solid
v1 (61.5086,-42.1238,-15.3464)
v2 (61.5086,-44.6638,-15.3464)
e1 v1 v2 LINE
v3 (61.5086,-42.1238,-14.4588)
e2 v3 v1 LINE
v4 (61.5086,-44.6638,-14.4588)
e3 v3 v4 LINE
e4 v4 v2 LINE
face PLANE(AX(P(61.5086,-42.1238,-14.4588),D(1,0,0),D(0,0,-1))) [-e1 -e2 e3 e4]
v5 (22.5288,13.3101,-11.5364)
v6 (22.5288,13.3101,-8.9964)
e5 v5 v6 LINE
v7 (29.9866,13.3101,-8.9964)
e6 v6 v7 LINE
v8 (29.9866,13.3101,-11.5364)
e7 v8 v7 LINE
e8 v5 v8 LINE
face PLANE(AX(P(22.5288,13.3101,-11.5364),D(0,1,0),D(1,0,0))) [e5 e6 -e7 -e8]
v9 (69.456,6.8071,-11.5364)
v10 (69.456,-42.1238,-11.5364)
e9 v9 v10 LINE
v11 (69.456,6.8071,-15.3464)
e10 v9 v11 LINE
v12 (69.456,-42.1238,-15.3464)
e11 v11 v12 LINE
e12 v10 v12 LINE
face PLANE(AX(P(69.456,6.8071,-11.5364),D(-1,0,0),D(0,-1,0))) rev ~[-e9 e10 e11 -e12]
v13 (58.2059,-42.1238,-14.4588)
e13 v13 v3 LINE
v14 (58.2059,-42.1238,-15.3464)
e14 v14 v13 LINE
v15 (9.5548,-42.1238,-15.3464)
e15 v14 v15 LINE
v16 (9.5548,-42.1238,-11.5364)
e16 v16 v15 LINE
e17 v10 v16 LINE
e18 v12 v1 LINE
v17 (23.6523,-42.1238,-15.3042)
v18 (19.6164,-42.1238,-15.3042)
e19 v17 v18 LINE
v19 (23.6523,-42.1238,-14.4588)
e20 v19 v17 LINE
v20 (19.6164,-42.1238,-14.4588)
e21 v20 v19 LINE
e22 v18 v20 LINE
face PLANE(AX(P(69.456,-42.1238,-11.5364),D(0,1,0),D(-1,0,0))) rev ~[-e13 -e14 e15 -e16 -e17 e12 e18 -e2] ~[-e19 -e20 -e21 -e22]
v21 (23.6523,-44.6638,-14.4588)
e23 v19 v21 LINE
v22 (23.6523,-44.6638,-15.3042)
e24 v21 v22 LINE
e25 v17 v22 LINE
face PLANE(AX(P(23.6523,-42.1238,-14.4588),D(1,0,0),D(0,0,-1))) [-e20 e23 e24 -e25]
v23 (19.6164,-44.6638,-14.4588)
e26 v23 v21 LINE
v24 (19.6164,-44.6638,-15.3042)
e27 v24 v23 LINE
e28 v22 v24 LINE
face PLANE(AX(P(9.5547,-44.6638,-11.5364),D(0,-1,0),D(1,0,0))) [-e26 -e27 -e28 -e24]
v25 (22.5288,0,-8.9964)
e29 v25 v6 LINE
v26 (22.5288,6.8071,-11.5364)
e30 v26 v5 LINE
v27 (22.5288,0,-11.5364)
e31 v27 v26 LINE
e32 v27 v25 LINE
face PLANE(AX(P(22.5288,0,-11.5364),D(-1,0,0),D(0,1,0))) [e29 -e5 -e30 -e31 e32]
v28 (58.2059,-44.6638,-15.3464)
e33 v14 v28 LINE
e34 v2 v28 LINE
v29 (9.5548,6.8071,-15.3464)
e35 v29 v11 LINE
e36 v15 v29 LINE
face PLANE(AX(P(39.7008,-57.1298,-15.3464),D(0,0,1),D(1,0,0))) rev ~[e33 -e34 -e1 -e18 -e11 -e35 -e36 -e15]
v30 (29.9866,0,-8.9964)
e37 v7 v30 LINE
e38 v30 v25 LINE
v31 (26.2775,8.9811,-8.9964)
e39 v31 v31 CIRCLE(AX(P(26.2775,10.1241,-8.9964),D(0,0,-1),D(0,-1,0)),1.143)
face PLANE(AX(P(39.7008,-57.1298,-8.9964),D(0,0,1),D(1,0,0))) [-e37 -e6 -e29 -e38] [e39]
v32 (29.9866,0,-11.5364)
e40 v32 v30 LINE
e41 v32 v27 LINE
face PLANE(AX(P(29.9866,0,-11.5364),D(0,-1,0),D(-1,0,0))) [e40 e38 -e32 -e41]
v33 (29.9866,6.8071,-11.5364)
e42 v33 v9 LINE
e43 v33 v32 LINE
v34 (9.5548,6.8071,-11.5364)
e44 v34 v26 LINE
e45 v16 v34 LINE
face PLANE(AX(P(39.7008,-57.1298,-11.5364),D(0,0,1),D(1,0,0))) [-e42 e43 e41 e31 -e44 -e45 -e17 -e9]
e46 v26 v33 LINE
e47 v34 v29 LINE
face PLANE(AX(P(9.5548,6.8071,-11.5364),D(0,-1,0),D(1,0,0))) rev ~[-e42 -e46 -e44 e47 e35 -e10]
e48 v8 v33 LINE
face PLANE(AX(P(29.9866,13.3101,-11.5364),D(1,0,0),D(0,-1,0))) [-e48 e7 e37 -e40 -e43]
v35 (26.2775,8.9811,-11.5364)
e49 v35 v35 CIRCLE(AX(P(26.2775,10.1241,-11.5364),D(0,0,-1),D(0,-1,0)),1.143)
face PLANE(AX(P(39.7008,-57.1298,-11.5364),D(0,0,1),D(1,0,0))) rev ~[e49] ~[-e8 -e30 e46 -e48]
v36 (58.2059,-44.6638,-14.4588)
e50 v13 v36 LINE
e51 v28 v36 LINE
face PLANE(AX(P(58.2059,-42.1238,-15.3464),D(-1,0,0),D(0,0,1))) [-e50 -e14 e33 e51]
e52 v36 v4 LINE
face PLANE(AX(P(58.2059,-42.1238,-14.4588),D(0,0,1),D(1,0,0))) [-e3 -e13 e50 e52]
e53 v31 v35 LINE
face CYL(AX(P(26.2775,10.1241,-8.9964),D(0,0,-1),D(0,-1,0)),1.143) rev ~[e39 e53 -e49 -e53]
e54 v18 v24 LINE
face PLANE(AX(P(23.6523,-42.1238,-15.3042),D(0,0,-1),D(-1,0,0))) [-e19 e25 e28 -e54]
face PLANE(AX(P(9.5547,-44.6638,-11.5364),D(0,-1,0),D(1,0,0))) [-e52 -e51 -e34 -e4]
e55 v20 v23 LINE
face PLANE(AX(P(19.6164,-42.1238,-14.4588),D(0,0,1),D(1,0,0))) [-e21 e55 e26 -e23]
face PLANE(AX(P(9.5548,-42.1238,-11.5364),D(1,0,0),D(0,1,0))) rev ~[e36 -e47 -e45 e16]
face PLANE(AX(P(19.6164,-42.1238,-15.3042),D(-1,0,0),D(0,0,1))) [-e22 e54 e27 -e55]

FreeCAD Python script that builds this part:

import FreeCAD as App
import Part
import Sketcher
Q = App.Units.Quantity

doc = App.newDocument("Part")
body = doc.addObject("PartDesign::Body", "Body")

sketch1 = body.newObject("Sketcher::SketchObject", "Sketch")
sketch1.AttachmentSupport = (doc.getObject("XY_Plane"), [""])
sketch1.MapMode = "FlatFace"
sketch1.AttachmentOffset = App.Placement(App.Vector(0, 0, -0.454189 * 25.4), App.Rotation())
sketch1.addGeometry([
    Part.LineSegment(App.Vector(69.456, 6.8071, 0), App.Vector(9.5548, 6.8071, 0)),
    Part.LineSegment(App.Vector(9.5548, 6.8071, 0), App.Vector(9.5548, -42.1238, 0)),
    Part.LineSegment(App.Vector(9.5548, -42.1238, 0), App.Vector(69.456, -42.1238, 0)),
    Part.LineSegment(App.Vector(69.456, -42.1238, 0), App.Vector(69.456, 6.8071, 0)),
], False)
sketch1.addConstraint([
    Sketcher.Constraint("Coincident", 0, 2, 1, 1),
    Sketcher.Constraint("Coincident", 1, 2, 2, 1),
    Sketcher.Constraint("Coincident", 2, 2, 3, 1),
    Sketcher.Constraint("Coincident", 3, 2, 0, 1),
    Sketcher.Constraint("Horizontal", 0),
    Sketcher.Constraint("Vertical", 1),
    Sketcher.Constraint("Horizontal", 2),
    Sketcher.Constraint("Vertical", 3),
    Sketcher.Constraint("DistanceY", -1, 1, 0, 2, Q("0.268 in")),
    Sketcher.Constraint("DistanceX", 0, 2, 0, 1, 59.9012),
    Sketcher.Constraint("DistanceY", 1, 2, 1, 1, 48.931),
    Sketcher.Constraint("DistanceX", -1, 1, 2, 2, Q("2.7345 in")),
])
pad1 = body.newObject("PartDesign::Pad", "Pad")
pad1.Profile = sketch1
pad1.Length = Q("0.15 in")
pad1.Reversed = True

sketch2 = body.newObject("Sketcher::SketchObject", "Sketch001")
sketch2.AttachmentSupport = (doc.getObject("XZ_Plane"), [""])
sketch2.MapMode = "FlatFace"
sketch2.AttachmentOffset = App.Placement(App.Vector(0, 0, 42.1238), App.Rotation())
sketch2.addGeometry([
    Part.LineSegment(App.Vector(58.2059, -15.3464, 0), App.Vector(61.5086, -15.3464, 0)),
    Part.LineSegment(App.Vector(61.5086, -15.3464, 0), App.Vector(61.5086, -14.4588, 0)),
    Part.LineSegment(App.Vector(61.5086, -14.4588, 0), App.Vector(58.2059, -14.4588, 0)),
    Part.LineSegment(App.Vector(58.2059, -14.4588, 0), App.Vector(58.2059, -15.3464, 0)),
    Part.LineSegment(App.Vector(19.6164, -15.3042, 0), App.Vector(23.6523, -15.3042, 0)),
    Part.LineSegment(App.Vector(23.6523, -15.3042, 0), App.Vector(23.6523, -14.4588, 0)),
    Part.LineSegment(App.Vector(23.6523, -14.4588, 0), App.Vector(19.6164, -14.4588, 0)),
    Part.LineSegment(App.Vector(19.6164, -14.4588, 0), App.Vector(19.6164, -15.3042, 0)),
], False)
sketch2.addConstraint([
    Sketcher.Constraint("Coincident", 0, 2, 1, 1),
    Sketcher.Constraint("Coincident", 1, 2, 2, 1),
    Sketcher.Constraint("Coincident", 2, 2, 3, 1),
    Sketcher.Constraint("Coincident", 3, 2, 0, 1),
    Sketcher.Constraint("Coincident", 4, 2, 5, 1),
    Sketcher.Constraint("Coincident", 5, 2, 6, 1),
    Sketcher.Constraint("Coincident", 6, 2, 7, 1),
    Sketcher.Constraint("Coincident", 7, 2, 4, 1),
    Sketcher.Constraint("Horizontal", 0),
    Sketcher.Constraint("Vertical", 1),
    Sketcher.Constraint("Horizontal", 2),
    Sketcher.Constraint("Vertical", 3),
    Sketcher.Constraint("Horizontal", 4),
    Sketcher.Constraint("Vertical", 5),
    Sketcher.Constraint("Horizontal", 6),
    Sketcher.Constraint("Vertical", 7),
    Sketcher.Constraint("Horizontal", 2, 2, 5, 2),
    Sketcher.Constraint("DistanceX", 4, 1, 4, 2, Q("0.1589 in")),
    Sketcher.Constraint("DistanceX", 0, 1, 0, 2, 3.3027),
    Sketcher.Constraint("DistanceY", 1, 1, 1, 2, 0.8876),
    Sketcher.Constraint("DistanceY", 5, 1, 5, 2, 0.8454),
    Sketcher.Constraint("DistanceX", -1, 1, 0, 2, Q("2.4216 in")),
    Sketcher.Constraint("DistanceY", 0, 2, -1, 1, Q("0.6042 in")),
    Sketcher.Constraint("DistanceX", -1, 1, 4, 2, Q("0.9312 in")),
])
pad2 = body.newObject("PartDesign::Pad", "Pad001")
pad2.Profile = sketch2
pad2.Length = Q("0.1 in")

sketch3 = body.newObject("Sketcher::SketchObject", "Sketch002")
sketch3.AttachmentSupport = (doc.getObject("XY_Plane"), [""])
sketch3.MapMode = "FlatFace"
sketch3.AttachmentOffset = App.Placement(App.Vector(0, 0, -0.454189 * 25.4), App.Rotation())
sketch3.addGeometry([
    Part.LineSegment(App.Vector(29.9866, 13.3101, 0), App.Vector(22.5288, 13.3101, 0)),
    Part.LineSegment(App.Vector(22.5288, 13.3101, 0), App.Vector(22.5288, 0, 0)),
    Part.LineSegment(App.Vector(22.5288, 0, 0), App.Vector(29.9866, 0, 0)),
    Part.LineSegment(App.Vector(29.9866, 0, 0), App.Vector(29.9866, 13.3101, 0)),
], False)
sketch3.addConstraint([
    Sketcher.Constraint("Coincident", 0, 2, 1, 1),
    Sketcher.Constraint("Coincident", 1, 2, 2, 1),
    Sketcher.Constraint("Coincident", 2, 2, 3, 1),
    Sketcher.Constraint("Coincident", 3, 2, 0, 1),
    Sketcher.Constraint("Horizontal", 0),
    Sketcher.Constraint("Vertical", 1),
    Sketcher.Constraint("Horizontal", 2),
    Sketcher.Constraint("Vertical", 3),
    Sketcher.Constraint("PointOnObject", 1, 2, -1),
    Sketcher.Constraint("DistanceX", 0, 2, 0, 1, 7.4578),
    Sketcher.Constraint("DistanceY", 1, 2, 1, 1, 13.31),
    Sketcher.Constraint("DistanceX", -1, 1, 0, 2, 22.5288),
])
pad3 = body.newObject("PartDesign::Pad", "Pad002")
pad3.Profile = sketch3
pad3.Length = Q("0.1 in")

sketch4 = body.newObject("Sketcher::SketchObject", "Sketch003")
sketch4.AttachmentSupport = (doc.getObject("XY_Plane"), [""])
sketch4.MapMode = "FlatFace"
sketch4.AttachmentOffset = App.Placement(App.Vector(0, 0, -0.354189 * 25.4), App.Rotation())
sketch4.addGeometry(Part.Circle(App.Vector(26.2775, 10.1241, 0), App.Vector(0, 0, 1), 1.143), False)
sketch4.addConstraint([
    Sketcher.Constraint("Diameter", 0, Q("0.09 in")),
    Sketcher.Constraint("DistanceX", -1, 1, 0, 3, 26.2775),
    Sketcher.Constraint("DistanceY", -1, 1, 0, 3, 10.124),
])
doc.recompute()
hole = body.newObject("PartDesign::Hole", "Hole")
hole.Profile = sketch4
hole.ThreadType = "None"
hole.Diameter = Q("0.09 in")
hole.DepthType = "ThroughAll"

doc.recompute()
